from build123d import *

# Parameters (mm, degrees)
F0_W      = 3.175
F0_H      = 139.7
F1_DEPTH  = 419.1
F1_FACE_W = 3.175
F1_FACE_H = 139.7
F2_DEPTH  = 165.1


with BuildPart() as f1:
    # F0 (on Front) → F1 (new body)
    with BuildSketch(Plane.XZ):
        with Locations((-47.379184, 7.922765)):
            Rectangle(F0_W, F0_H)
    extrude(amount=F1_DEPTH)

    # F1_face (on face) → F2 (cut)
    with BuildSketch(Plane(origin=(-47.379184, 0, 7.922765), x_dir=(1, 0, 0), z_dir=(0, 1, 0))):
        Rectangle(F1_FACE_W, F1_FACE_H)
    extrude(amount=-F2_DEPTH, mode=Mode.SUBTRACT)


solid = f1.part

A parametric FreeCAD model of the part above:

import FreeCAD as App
import Part
import Sketcher
from FreeCAD import Vector
Q = App.Units.Quantity


def add_polygon(sketch, points):
    """Adds a closed chain of lines whose ends are joined by coincident constraints."""
    first, n = sketch.GeometryCount, len(points)
    for a, b in zip(points, points[1:] + points[:1]):
        sketch.addGeometry(Part.LineSegment(App.Vector(*a, 0), App.Vector(*b, 0)), False)
    for i in range(n):
        sketch.addConstraint(Sketcher.Constraint("Coincident", first + i, 2, first + (i + 1) % n, 1))

doc = App.newDocument("Part")
body = doc.addObject("PartDesign::Body", "Body")

sketch1 = doc.addObject("Sketcher::SketchObject", "Sketch")
body.addObject(sketch1)
sketch1.AttachmentSupport = (doc.XZ_Plane, [""])
sketch1.MapMode = "FlatFace"
add_polygon(sketch1, [(-49, 77.8), (-49, -61.9), (-45.8, -61.9), (-45.8, 77.8)])
sketch1.addConstraint(Sketcher.Constraint("Vertical", 0))
sketch1.addConstraint(Sketcher.Constraint("Horizontal", 1))
sketch1.addConstraint(Sketcher.Constraint("Vertical", 2))
sketch1.addConstraint(Sketcher.Constraint("Horizontal", 3))
sketch1.addConstraint(Sketcher.Constraint("DistanceY", 0, 2, 0, 1, Q("5.5 in")))
sketch1.addConstraint(Sketcher.Constraint("DistanceX", 1, 1, 1, 2, Q("0.125 in")))
sketch1.addConstraint(Sketcher.Constraint("DistanceX", 0, 2, -1, 1, Q("48.966684 mm")))
sketch1.addConstraint(Sketcher.Constraint("DistanceY", 0, 2, -1, 1, Q("61.927235 mm")))
pad1 = doc.addObject("PartDesign::Pad", "Pad")
body.addObject(pad1)
pad1.Profile = sketch1
pad1.Length = Q("16.5 in")

sketch2 = doc.addObject("Sketcher::SketchObject", "Sketch001")
body.addObject(sketch2)
sketch2.AttachmentSupport = (doc.XZ_Plane, [""])
sketch2.MapMode = "FlatFace"
add_polygon(sketch2, [(-49, -61.9), (-49, 77.8), (-45.8, 77.8), (-45.8, -61.9)])
sketch2.addConstraint(Sketcher.Constraint("Vertical", 0))
sketch2.addConstraint(Sketcher.Constraint("Horizontal", 1))
sketch2.addConstraint(Sketcher.Constraint("Vertical", 2))
sketch2.addConstraint(Sketcher.Constraint("Horizontal", 3))
sketch2.addConstraint(Sketcher.Constraint("DistanceY", 0, 1, 0, 2, Q("5.5 in")))
sketch2.addConstraint(Sketcher.Constraint("DistanceX", 1, 1, 1, 2, Q("0.125 in")))
sketch2.addConstraint(Sketcher.Constraint("DistanceX", 0, 2, -1, 1, Q("48.966684 mm")))
sketch2.addConstraint(Sketcher.Constraint("DistanceY", -1, 1, 0, 2, Q("77.772765 mm")))
pocket1 = doc.addObject("PartDesign::Pocket", "Pocket")
body.addObject(pocket1)
pocket1.Profile = sketch2
pocket1.Length = Q("6.5 in")
pocket1.Reversed = True

doc.recompute()
